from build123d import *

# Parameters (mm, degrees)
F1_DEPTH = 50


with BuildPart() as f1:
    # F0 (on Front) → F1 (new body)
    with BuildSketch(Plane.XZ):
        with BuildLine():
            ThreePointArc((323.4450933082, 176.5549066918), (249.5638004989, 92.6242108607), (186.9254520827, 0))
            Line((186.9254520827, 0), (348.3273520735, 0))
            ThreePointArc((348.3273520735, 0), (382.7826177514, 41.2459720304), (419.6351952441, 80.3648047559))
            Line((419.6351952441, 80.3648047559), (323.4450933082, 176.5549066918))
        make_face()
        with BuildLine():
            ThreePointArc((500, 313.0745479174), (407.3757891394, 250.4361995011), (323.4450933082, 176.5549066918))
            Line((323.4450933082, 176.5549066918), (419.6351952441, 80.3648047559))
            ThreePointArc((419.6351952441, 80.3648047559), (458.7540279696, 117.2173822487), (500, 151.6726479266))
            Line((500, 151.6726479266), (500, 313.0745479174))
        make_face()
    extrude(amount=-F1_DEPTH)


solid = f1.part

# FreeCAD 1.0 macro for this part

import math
import FreeCAD as App
import Part
import Sketcher

V = App.Vector
Q = App.Units.Quantity

doc = App.newDocument("Part")
body = doc.addObject("PartDesign::Body", "Body")

# Sketch on XZ plane
sketch1 = body.newObject("Sketcher::SketchObject", "Sketch")
sketch1.AttachmentSupport = (doc.getObject("XZ_Plane"), [""])
sketch1.MapMode = "FlatFace"
sketch1.addGeometry(Part.LineSegment(V(187, 0, 0), V(348, 0, 0)), False)
sketch1.addGeometry(Part.ArcOfCircle(Part.Circle(V(1057, -557, 0), V(0, 0, 1), 901), math.radians(128.17), math.radians(141.83)), False)
sketch1.addGeometry(Part.LineSegment(V(500, 152, 0), V(500, 313, 0)), False)
sketch1.addGeometry(Part.ArcOfCircle(Part.Circle(V(946, -446, 0), V(0, 0, 1), 880), math.radians(120), math.radians(150)), False)
sketch1.addConstraint(Sketcher.Constraint("Coincident", 0, 2, 1, 2))
sketch1.addConstraint(Sketcher.Constraint("Coincident", 1, 1, 2, 1))
sketch1.addConstraint(Sketcher.Constraint("Coincident", 2, 2, 3, 1))
sketch1.addConstraint(Sketcher.Constraint("Coincident", 3, 2, 0, 1))
sketch1.addConstraint(Sketcher.Constraint("Horizontal", 0))
sketch1.addConstraint(Sketcher.Constraint("Vertical", 2))
sketch1.addConstraint(Sketcher.Constraint("PointOnObject", 0, 2, -1))
sketch1.addConstraint(Sketcher.Constraint("Equal", 0, 2))
sketch1.addConstraint(Sketcher.Constraint("DistanceX", -1, 1, 2, 2, Q("500 mm")))
sketch1.addConstraint(Sketcher.Constraint("Radius", 3, Q("879.73581 mm")))
sketch1.addConstraint(Sketcher.Constraint("DistanceX", 0, 1, 0, 2, Q("161.4019 mm")))
sketch1.addConstraint(Sketcher.Constraint("Radius", 1, Q("901.224207 mm")))
sketch1.addConstraint(Sketcher.Constraint("DistanceX", -1, 1, 3, 3, Q("945.51225 mm")))
sketch1.addConstraint(Sketcher.Constraint("DistanceY", 3, 3, -1, 1, Q("445.51225 mm")))
pad1 = body.newObject("PartDesign::Pad", "Pad")
pad1.Profile = sketch1
pad1.Length = 50
pad1.Reversed = True

doc.recompute()
